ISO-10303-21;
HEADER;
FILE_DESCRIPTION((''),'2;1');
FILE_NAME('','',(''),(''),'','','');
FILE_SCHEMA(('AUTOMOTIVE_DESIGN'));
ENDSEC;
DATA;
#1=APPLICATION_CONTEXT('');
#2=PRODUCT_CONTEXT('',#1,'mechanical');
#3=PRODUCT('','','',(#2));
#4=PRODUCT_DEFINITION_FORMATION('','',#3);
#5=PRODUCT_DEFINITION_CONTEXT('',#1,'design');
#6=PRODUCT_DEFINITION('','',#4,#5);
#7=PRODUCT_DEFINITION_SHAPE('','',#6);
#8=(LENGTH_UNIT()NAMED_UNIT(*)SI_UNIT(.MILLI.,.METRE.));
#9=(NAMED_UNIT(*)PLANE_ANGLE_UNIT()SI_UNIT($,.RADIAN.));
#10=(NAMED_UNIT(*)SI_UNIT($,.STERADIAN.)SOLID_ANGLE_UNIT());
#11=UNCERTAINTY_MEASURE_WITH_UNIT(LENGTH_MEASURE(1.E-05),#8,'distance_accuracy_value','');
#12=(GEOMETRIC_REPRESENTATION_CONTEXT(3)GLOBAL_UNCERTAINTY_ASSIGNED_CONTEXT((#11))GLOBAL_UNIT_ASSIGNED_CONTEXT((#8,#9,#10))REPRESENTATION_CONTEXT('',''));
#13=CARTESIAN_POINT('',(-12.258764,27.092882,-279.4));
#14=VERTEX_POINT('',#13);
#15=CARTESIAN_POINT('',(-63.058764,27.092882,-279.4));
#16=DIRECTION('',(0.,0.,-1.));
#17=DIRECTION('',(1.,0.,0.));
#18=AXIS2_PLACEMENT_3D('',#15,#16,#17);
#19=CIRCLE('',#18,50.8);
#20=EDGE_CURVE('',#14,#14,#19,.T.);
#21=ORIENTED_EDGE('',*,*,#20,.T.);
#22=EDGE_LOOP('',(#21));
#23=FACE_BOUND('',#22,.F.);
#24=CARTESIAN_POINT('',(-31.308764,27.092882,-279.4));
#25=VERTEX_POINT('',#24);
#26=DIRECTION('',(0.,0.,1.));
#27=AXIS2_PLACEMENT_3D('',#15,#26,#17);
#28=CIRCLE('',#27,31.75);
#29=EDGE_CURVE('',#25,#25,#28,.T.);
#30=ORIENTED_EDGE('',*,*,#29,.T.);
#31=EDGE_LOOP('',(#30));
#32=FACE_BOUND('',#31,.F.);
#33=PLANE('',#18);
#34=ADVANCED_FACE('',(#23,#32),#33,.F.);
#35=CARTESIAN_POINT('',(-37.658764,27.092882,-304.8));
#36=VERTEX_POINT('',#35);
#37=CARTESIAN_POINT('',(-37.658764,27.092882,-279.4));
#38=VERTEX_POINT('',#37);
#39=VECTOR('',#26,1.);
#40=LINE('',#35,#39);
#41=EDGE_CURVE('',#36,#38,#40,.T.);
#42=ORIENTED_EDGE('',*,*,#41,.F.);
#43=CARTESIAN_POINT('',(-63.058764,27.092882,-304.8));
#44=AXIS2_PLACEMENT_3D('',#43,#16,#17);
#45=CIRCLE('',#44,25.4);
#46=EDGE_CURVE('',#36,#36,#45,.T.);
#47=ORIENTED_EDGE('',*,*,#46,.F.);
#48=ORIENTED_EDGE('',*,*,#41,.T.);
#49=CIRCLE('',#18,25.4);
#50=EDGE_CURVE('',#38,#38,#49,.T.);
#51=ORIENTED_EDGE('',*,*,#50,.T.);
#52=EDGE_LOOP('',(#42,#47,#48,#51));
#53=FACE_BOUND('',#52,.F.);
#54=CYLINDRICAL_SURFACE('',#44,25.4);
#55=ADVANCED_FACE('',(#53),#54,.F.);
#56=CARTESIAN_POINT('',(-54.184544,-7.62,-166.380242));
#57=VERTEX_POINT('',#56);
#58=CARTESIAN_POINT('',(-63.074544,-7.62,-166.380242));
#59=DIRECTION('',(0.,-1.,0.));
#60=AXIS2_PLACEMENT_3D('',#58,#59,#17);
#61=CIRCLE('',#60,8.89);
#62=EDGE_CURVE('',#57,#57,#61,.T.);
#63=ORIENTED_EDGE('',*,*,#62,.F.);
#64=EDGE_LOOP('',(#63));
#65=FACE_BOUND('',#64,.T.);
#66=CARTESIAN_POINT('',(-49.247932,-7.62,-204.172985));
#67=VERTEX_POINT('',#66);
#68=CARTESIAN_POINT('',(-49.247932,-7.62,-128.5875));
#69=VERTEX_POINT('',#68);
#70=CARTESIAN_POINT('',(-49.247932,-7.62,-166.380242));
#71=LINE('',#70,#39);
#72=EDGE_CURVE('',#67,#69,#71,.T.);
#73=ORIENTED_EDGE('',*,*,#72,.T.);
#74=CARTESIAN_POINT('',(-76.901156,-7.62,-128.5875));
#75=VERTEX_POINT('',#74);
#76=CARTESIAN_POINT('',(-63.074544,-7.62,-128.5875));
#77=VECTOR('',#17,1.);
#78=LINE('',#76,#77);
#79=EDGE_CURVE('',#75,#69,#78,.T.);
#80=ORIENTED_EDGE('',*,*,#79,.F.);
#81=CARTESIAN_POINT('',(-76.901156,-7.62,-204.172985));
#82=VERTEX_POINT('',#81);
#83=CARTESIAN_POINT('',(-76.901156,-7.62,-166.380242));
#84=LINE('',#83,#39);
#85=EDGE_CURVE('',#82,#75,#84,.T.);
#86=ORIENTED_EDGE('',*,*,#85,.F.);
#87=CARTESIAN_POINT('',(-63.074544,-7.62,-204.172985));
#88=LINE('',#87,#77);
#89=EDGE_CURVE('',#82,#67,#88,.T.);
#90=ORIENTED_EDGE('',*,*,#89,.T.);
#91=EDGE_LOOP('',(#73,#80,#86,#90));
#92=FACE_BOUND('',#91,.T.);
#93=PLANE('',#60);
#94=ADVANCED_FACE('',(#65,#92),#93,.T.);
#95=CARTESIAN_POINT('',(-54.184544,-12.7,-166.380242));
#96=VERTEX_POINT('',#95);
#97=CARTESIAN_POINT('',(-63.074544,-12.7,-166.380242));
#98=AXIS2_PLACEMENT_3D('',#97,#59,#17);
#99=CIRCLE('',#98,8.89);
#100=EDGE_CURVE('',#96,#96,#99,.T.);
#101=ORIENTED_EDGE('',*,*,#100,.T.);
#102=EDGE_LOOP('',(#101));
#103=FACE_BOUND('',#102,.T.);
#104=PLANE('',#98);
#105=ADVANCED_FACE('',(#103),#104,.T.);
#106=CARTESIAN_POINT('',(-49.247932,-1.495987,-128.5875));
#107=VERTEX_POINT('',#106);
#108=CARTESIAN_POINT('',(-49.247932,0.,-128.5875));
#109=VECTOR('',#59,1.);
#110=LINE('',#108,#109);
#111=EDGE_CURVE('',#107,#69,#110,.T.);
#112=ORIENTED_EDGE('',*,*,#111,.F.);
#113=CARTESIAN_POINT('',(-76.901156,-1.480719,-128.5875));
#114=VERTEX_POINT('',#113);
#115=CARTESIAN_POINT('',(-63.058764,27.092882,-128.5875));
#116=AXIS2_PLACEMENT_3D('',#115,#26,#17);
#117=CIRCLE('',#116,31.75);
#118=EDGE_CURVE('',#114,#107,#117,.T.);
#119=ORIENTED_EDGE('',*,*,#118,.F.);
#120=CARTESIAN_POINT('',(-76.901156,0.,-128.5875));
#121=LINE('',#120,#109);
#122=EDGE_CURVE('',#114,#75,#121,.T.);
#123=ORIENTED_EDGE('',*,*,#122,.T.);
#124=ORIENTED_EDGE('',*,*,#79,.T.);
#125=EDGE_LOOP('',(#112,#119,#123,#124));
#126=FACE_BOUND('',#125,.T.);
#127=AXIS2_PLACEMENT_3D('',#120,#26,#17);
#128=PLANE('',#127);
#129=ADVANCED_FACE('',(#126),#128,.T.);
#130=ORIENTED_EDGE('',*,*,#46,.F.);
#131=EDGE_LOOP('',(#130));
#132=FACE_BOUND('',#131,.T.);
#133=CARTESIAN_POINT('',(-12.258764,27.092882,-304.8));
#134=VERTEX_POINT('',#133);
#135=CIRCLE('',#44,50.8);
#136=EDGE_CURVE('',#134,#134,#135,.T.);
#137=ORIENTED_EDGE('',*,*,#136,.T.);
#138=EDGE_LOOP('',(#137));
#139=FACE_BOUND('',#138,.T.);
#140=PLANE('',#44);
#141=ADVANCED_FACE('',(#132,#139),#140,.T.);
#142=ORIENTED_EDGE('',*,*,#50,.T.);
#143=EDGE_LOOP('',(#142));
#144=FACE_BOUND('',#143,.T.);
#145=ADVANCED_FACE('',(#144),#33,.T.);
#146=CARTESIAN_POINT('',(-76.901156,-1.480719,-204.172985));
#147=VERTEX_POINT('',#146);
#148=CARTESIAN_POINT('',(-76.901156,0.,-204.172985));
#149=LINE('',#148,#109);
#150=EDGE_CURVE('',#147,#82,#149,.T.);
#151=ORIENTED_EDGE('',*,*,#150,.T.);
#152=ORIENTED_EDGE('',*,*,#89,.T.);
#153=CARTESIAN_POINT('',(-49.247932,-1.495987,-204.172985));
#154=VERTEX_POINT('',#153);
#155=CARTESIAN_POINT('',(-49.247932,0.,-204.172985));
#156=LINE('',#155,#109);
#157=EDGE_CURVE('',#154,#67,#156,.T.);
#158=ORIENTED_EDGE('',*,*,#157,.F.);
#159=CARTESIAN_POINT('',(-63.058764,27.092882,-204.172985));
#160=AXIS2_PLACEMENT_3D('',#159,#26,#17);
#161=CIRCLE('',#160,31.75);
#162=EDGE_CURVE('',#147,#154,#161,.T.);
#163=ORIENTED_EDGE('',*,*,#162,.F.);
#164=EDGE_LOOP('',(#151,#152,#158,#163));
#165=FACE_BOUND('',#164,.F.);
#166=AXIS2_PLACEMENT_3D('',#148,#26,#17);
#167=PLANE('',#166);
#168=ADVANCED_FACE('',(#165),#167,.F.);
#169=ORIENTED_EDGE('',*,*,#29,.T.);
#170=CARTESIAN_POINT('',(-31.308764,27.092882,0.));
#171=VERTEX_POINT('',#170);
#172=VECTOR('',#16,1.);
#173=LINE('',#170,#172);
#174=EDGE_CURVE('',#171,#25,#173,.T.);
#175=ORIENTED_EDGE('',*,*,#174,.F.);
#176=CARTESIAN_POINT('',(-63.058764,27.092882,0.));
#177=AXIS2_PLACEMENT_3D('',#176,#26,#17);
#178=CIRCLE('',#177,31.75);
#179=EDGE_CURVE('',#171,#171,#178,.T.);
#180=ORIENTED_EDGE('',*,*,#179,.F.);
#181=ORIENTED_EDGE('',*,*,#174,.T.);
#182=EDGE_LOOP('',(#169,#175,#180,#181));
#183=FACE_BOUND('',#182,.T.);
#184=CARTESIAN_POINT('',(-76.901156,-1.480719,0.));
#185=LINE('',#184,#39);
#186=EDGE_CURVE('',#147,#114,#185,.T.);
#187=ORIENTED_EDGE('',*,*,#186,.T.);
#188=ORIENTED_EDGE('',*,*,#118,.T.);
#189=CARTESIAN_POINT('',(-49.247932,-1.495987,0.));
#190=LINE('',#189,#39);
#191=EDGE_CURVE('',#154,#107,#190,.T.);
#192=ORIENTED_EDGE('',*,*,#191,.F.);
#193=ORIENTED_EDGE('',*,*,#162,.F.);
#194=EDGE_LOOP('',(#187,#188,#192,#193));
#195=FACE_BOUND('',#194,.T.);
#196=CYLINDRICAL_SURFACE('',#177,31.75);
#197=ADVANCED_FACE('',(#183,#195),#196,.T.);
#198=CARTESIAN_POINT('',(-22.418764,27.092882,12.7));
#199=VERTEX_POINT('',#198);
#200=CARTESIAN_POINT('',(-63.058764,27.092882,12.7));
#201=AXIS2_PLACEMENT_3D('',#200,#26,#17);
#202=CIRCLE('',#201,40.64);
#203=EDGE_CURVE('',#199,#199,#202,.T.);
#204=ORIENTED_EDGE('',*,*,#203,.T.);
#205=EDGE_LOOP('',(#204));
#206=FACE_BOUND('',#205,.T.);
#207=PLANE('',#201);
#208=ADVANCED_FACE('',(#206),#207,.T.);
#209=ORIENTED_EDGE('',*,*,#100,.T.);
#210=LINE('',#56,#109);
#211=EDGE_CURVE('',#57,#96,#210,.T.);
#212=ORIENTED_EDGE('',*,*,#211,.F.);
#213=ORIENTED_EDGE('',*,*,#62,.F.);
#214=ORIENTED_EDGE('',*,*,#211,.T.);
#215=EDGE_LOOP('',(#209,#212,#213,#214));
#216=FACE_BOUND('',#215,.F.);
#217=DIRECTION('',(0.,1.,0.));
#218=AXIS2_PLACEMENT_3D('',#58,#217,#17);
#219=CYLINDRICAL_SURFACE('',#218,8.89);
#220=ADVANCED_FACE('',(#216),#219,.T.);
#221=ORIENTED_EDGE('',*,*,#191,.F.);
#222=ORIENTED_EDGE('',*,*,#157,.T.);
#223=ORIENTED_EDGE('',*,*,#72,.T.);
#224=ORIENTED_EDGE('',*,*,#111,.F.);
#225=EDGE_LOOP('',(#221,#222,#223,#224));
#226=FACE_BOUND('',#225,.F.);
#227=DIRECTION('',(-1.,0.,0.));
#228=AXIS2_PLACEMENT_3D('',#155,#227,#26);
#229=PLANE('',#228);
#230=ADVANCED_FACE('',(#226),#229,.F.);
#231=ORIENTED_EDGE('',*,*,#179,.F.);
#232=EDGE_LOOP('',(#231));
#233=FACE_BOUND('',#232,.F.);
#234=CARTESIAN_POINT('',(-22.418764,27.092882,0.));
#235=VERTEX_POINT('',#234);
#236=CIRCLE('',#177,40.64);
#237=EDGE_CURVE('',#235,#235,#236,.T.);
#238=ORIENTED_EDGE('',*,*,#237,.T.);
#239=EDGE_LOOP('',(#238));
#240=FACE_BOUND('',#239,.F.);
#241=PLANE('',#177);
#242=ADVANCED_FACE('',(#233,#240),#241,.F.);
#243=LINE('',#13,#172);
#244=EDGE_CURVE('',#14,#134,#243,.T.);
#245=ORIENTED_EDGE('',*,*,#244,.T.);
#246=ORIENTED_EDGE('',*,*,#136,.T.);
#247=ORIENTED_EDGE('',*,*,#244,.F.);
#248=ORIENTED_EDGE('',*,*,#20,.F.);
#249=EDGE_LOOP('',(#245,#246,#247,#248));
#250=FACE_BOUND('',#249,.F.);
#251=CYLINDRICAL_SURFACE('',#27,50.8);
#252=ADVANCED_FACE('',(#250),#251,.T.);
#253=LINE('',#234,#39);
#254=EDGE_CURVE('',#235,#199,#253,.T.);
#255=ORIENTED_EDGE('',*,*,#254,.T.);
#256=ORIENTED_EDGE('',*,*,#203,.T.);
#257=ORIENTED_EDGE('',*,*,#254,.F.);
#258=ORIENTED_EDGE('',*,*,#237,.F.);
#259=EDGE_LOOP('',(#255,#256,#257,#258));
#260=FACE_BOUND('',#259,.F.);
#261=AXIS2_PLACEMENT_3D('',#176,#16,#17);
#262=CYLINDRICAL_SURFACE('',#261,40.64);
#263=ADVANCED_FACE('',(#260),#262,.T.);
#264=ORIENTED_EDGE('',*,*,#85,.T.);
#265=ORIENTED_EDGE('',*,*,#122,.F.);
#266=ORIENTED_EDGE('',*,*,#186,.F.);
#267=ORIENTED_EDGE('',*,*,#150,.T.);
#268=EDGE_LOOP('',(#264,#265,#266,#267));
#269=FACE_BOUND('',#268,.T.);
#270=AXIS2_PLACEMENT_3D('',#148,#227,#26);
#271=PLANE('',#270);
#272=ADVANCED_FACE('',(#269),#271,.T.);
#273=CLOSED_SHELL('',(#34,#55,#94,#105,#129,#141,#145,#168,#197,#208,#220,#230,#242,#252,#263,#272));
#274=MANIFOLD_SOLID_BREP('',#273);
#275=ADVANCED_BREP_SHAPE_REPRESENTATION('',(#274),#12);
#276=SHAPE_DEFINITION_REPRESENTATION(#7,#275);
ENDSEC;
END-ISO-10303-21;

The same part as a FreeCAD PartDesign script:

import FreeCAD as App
import Part
import Sketcher

V = App.Vector
Q = App.Units.Quantity

doc = App.newDocument("Part")
body = doc.addObject("PartDesign::Body", "Body")

sketch1 = doc.addObject("Sketcher::SketchObject", "Sketch")
body.addObject(sketch1)
sketch1.AttachmentSupport = (doc.XY_Plane, [""])
sketch1.MapMode = "FlatFace"
sketch1.addGeometry(Part.Circle(V(-63, 27, 0), V(0, 0, 1), 32), False)
sketch1.addConstraint(Sketcher.Constraint("Diameter", 0, Q("2.5 in")))
sketch1.addConstraint(Sketcher.Constraint("DistanceY", -1, 1, 0, 3, 27.092882))
sketch1.addConstraint(Sketcher.Constraint("DistanceX", 0, 3, -1, 1, 63.058764))
pad1 = doc.addObject("PartDesign::Pad", "Pad")
body.addObject(pad1)
pad1.Profile = sketch1
pad1.Length = Q("11 in")
pad1.Reversed = True

sketch2 = doc.addObject("Sketcher::SketchObject", "Sketch001")
body.addObject(sketch2)
sketch2.AttachmentSupport = (doc.XY_Plane, [""])
sketch2.MapMode = "FlatFace"
sketch2.AttachmentOffset = App.Placement(V(0, 0, -11 * 25.4), App.Rotation())
sketch2.addGeometry(Part.Circle(V(-63, 27, 0), V(0, 0, 1), 51), False)
sketch2.addConstraint(Sketcher.Constraint("Diameter", 0, Q("4 in")))
sketch2.addConstraint(Sketcher.Constraint("DistanceY", -1, 1, 0, 3, 27.092882))
sketch2.addConstraint(Sketcher.Constraint("DistanceX", 0, 3, -1, 1, 63.058764))
pad2 = doc.addObject("PartDesign::Pad", "Pad001")
body.addObject(pad2)
pad2.Profile = sketch2
pad2.Length = Q("2 in")
pad2.Reversed = True

sketch3 = doc.addObject("Sketcher::SketchObject", "Sketch002")
body.addObject(sketch3)
sketch3.AttachmentSupport = (doc.XY_Plane, [""])
sketch3.MapMode = "FlatFace"
sketch3.addGeometry(Part.Circle(V(-63, 27, 0), V(0, 0, 1), 41), False)
sketch3.addConstraint(Sketcher.Constraint("Diameter", 0, Q("3.2 in")))
sketch3.addConstraint(Sketcher.Constraint("DistanceY", -1, 1, 0, 3, 27.092882))
sketch3.addConstraint(Sketcher.Constraint("DistanceX", 0, 3, -1, 1, 63.058764))
pad3 = doc.addObject("PartDesign::Pad", "Pad002")
body.addObject(pad3)
pad3.Profile = sketch3
pad3.Length = Q("0.5 in")

sketch4 = doc.addObject("Sketcher::SketchObject", "Sketch003")
body.addObject(sketch4)
sketch4.AttachmentSupport = (doc.XY_Plane, [""])
sketch4.MapMode = "FlatFace"
sketch4.AttachmentOffset = App.Placement(V(0, 0, -13 * 25.4), App.Rotation())
sketch4.addGeometry(Part.Circle(V(-63, 27, 0), V(0, 0, 1), 51), False)
sketch4.addConstraint(Sketcher.Constraint("Diameter", 0, Q("4 in")))
sketch4.addConstraint(Sketcher.Constraint("DistanceY", -1, 1, 0, 3, 27.092882))
sketch4.addConstraint(Sketcher.Constraint("DistanceX", 0, 3, -1, 1, 63.058764))
pocket1 = doc.addObject("PartDesign::Pocket", "Pocket")
body.addObject(pocket1)
pocket1.Profile = sketch4
pocket1.Length = Q("1 in")
pocket1.Reversed = True

sketch5 = doc.addObject("Sketcher::SketchObject", "Sketch004")
body.addObject(sketch5)
sketch5.AttachmentSupport = (doc.XZ_Plane, [""])
sketch5.MapMode = "FlatFace"
sketch5.addGeometry(Part.LineSegment(V(-77, -129, 0), V(-77, -204, 0)), False)
sketch5.addGeometry(Part.LineSegment(V(-77, -204, 0), V(-49, -204, 0)), False)
sketch5.addGeometry(Part.LineSegment(V(-49, -204, 0), V(-49, -129, 0)), False)
sketch5.addGeometry(Part.LineSegment(V(-49, -129, 0), V(-77, -129, 0)), False)
sketch5.addConstraint(Sketcher.Constraint("Coincident", 0, 2, 1, 1))
sketch5.addConstraint(Sketcher.Constraint("Coincident", 1, 2, 2, 1))
sketch5.addConstraint(Sketcher.Constraint("Coincident", 2, 2, 3, 1))
sketch5.addConstraint(Sketcher.Constraint("Coincident", 3, 2, 0, 1))
sketch5.addConstraint(Sketcher.Constraint("Vertical", 0))
sketch5.addConstraint(Sketcher.Constraint("Horizontal", 1))
sketch5.addConstraint(Sketcher.Constraint("Vertical", 2))
sketch5.addConstraint(Sketcher.Constraint("Horizontal", 3))
sketch5.addConstraint(Sketcher.Constraint("DistanceY", 2, 2, -1, 1, Q("5.0625 in")))
sketch5.addConstraint(Sketcher.Constraint("DistanceX", 1, 1, 1, 2, 27.653224))
sketch5.addConstraint(Sketcher.Constraint("DistanceY", 0, 2, 0, 1, 75.585485))
sketch5.addConstraint(Sketcher.Constraint("DistanceX", 0, 2, -1, 1, 76.901156))
pad4 = doc.addObject("PartDesign::Pad", "Pad003")
body.addObject(pad4)
pad4.Profile = sketch5
pad4.Length = Q("0.3 in")

sketch6 = doc.addObject("Sketcher::SketchObject", "Sketch005")
body.addObject(sketch6)
sketch6.AttachmentSupport = (doc.XY_Plane, [""])
sketch6.MapMode = "FlatFace"
sketch6.AttachmentOffset = App.Placement(V(0, 0, -12 * 25.4), App.Rotation())
sketch6.addGeometry(Part.Circle(V(-63, 27, 0), V(0, 0, 1), 25), False)
sketch6.addConstraint(Sketcher.Constraint("Diameter", 0, Q("2 in")))
sketch6.addConstraint(Sketcher.Constraint("DistanceY", -1, 1, 0, 3, 27.092882))
sketch6.addConstraint(Sketcher.Constraint("DistanceX", 0, 3, -1, 1, 63.058764))
pocket2 = doc.addObject("PartDesign::Pocket", "Pocket001")
body.addObject(pocket2)
pocket2.Profile = sketch6
pocket2.Length = Q("1 in")
pocket2.Reversed = True

sketch7 = doc.addObject("Sketcher::SketchObject", "Sketch006")
body.addObject(sketch7)
sketch7.AttachmentSupport = (doc.XZ_Plane, [""])
sketch7.MapMode = "FlatFace"
sketch7.AttachmentOffset = App.Placement(V(0, 0, 0.3 * 25.4), App.Rotation())
sketch7.addGeometry(Part.Circle(V(-63, -166, 0), V(0, 0, 1), 9), False)
sketch7.addConstraint(Sketcher.Constraint("Diameter", 0, Q("0.7 in")))
sketch7.addConstraint(Sketcher.Constraint("DistanceX", 0, 3, -1, 1, 63.074544))
sketch7.addConstraint(Sketcher.Constraint("DistanceY", 0, 3, -1, 1, 166.380242))
pad5 = doc.addObject("PartDesign::Pad", "Pad004")
body.addObject(pad5)
pad5.Profile = sketch7
pad5.Length = Q("0.2 in")

doc.recompute()
